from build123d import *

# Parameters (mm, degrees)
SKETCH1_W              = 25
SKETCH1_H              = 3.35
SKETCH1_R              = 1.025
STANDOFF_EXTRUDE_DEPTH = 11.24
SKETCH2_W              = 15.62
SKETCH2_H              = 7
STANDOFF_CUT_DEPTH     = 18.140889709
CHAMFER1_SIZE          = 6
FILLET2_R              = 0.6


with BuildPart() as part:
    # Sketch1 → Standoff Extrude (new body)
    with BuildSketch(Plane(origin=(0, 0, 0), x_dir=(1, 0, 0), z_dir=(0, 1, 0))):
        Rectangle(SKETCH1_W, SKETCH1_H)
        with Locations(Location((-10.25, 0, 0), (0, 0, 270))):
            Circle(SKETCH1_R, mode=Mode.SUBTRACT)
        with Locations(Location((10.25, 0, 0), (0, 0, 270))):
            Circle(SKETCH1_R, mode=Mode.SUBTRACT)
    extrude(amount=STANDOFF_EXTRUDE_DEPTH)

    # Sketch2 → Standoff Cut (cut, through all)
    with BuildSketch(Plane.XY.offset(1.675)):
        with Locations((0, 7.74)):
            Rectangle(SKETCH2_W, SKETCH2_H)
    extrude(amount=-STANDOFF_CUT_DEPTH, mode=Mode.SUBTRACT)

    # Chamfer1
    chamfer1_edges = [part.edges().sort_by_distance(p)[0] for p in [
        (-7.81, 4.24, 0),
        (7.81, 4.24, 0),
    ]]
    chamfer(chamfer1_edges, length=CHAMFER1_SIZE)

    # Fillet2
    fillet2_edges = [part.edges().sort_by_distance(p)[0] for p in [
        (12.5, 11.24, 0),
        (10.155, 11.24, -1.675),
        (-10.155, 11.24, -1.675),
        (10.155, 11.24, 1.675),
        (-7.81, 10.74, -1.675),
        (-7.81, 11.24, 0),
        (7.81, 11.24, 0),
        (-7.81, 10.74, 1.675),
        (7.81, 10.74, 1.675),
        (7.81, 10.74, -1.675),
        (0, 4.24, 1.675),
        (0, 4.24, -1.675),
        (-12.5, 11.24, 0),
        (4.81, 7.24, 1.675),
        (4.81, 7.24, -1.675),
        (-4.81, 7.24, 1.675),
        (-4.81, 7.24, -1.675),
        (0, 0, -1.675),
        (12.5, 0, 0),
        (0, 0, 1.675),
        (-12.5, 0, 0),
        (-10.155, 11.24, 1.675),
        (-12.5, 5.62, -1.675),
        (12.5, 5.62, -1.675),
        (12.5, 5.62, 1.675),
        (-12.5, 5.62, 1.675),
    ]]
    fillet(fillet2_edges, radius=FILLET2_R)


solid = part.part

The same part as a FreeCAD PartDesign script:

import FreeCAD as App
import Part
import Sketcher

V = App.Vector


def edges_at(feature, points):
    """Names of the edges that pass closest to the given points."""
    edges = feature.Shape.Edges
    near = lambda p: min(range(len(edges)), key=lambda i: edges[i].distToShape(Part.Vertex(*p))[0])
    return sorted({f"Edge{near(p) + 1}" for p in points})

doc = App.newDocument("Part")
body = doc.addObject("PartDesign::Body", "Body")

sketch1 = body.newObject("Sketcher::SketchObject", "Sketch")
sketch1.AttachmentSupport = (doc.getObject("XZ_Plane"), [""])
sketch1.MapMode = "FlatFace"
sketch1.addGeometry(Part.LineSegment(V(-12.5, -1.675, 0), V(-12.5, 1.675, 0)), False)
sketch1.addGeometry(Part.LineSegment(V(-12.5, 1.675, 0), V(12.5, 1.675, 0)), False)
sketch1.addGeometry(Part.LineSegment(V(12.5, 1.675, 0), V(12.5, -1.675, 0)), False)
sketch1.addGeometry(Part.LineSegment(V(12.5, -1.675, 0), V(-12.5, -1.675, 0)), False)
sketch1.addGeometry(Part.Circle(V(-10.25, 0, 0), V(0, 0, 1), 1.025), False)
sketch1.addGeometry(Part.Circle(V(10.25, 0, 0), V(0, 0, 1), 1.025), False)
sketch1.addConstraint(Sketcher.Constraint("Coincident", 0, 2, 1, 1))
sketch1.addConstraint(Sketcher.Constraint("Coincident", 1, 2, 2, 1))
sketch1.addConstraint(Sketcher.Constraint("Coincident", 2, 2, 3, 1))
sketch1.addConstraint(Sketcher.Constraint("Coincident", 3, 2, 0, 1))
sketch1.addConstraint(Sketcher.Constraint("Vertical", 0))
sketch1.addConstraint(Sketcher.Constraint("Horizontal", 1))
sketch1.addConstraint(Sketcher.Constraint("Vertical", 2))
sketch1.addConstraint(Sketcher.Constraint("Horizontal", 3))
sketch1.addConstraint(Sketcher.Constraint("Equal", 4, 5))
sketch1.addConstraint(Sketcher.Constraint("Symmetric", 4, 3, 5, 3, -1, 1))
sketch1.addConstraint(Sketcher.Constraint("Symmetric", 0, 2, 2, 2, -1, 1))
sketch1.addConstraint(Sketcher.Constraint("PointOnObject", 4, 3, -1))
sketch1.addConstraint(Sketcher.Constraint("Diameter", 4, 2.05))
sketch1.addConstraint(Sketcher.Constraint("DistanceX", 1, 1, 1, 2, 25.0))
sketch1.addConstraint(Sketcher.Constraint("DistanceY", 0, 1, 0, 2, 3.35))
sketch1.addConstraint(Sketcher.Constraint("DistanceX", 4, 3, 5, 3, 20.5))
pad1 = body.newObject("PartDesign::Pad", "Pad")
pad1.Profile = sketch1
pad1.Length = 11.24
pad1.Reversed = True

sketch2 = body.newObject("Sketcher::SketchObject", "Sketch001")
sketch2.AttachmentSupport = (doc.getObject("XY_Plane"), [""])
sketch2.MapMode = "FlatFace"
sketch2.AttachmentOffset = App.Placement(V(0, 0, 1.675), App.Rotation())
sketch2.addGeometry(Part.LineSegment(V(-7.81, 11.24, 0), V(-7.81, 4.24, 0)), False)
sketch2.addGeometry(Part.LineSegment(V(-7.81, 4.24, 0), V(7.81, 4.24, 0)), False)
sketch2.addGeometry(Part.LineSegment(V(7.81, 4.24, 0), V(7.81, 11.24, 0)), False)
sketch2.addGeometry(Part.LineSegment(V(7.81, 11.24, 0), V(-7.81, 11.24, 0)), False)
sketch2.addConstraint(Sketcher.Constraint("Coincident", 0, 2, 1, 1))
sketch2.addConstraint(Sketcher.Constraint("Coincident", 1, 2, 2, 1))
sketch2.addConstraint(Sketcher.Constraint("Coincident", 2, 2, 3, 1))
sketch2.addConstraint(Sketcher.Constraint("Coincident", 3, 2, 0, 1))
sketch2.addConstraint(Sketcher.Constraint("Vertical", 0))
sketch2.addConstraint(Sketcher.Constraint("Horizontal", 1))
sketch2.addConstraint(Sketcher.Constraint("Vertical", 2))
sketch2.addConstraint(Sketcher.Constraint("Horizontal", 3))
sketch2.addConstraint(Sketcher.Constraint("DistanceY", 0, 2, 0, 1, 7.0))
sketch2.addConstraint(Sketcher.Constraint("DistanceX", 1, 1, 1, 2, 15.62))
sketch2.addConstraint(Sketcher.Constraint("DistanceX", 0, 2, -1, 1, 7.81))
sketch2.addConstraint(Sketcher.Constraint("DistanceY", -1, 1, 0, 2, 4.24))
pocket1 = body.newObject("PartDesign::Pocket", "Pocket")
pocket1.Profile = sketch2
pocket1.Type = "ThroughAll"
doc.recompute()

chamfer = body.newObject("PartDesign::Chamfer", "Chamfer")
chamfer.Base = (pocket1, edges_at(pocket1, [(-7.81, 4.24, 0), (7.81, 4.24, 0)]))
chamfer.Size = 6
doc.recompute()

fillet = body.newObject("PartDesign::Fillet", "Fillet")
fillet.Base = (chamfer, edges_at(chamfer, [
    (12.5, 11.24, 0),
    (10.155, 11.24, -1.675),
    (-10.155, 11.24, -1.675),
    (10.155, 11.24, 1.675),
    (-7.81, 10.74, -1.675),
    (-7.81, 11.24, 0),
    (7.81, 11.24, 0),
    (-7.81, 10.74, 1.675),
    (7.81, 10.74, 1.675),
    (7.81, 10.74, -1.675),
    (0, 4.24, 1.675),
    (0, 4.24, -1.675),
    (-12.5, 11.24, 0),
    (4.81, 7.24, 1.675),
    (4.81, 7.24, -1.675),
    (-4.81, 7.24, 1.675),
    (-4.81, 7.24, -1.675),
    (0, 0, -1.675),
    (12.5, 0, 0),
    (0, 0, 1.675),
    (-12.5, 0, 0),
    (-10.155, 11.24, 1.675),
    (-12.5, 5.62, -1.675),
    (12.5, 5.62, -1.675),
    (12.5, 5.62, 1.675),
    (-12.5, 5.62, 1.675),
]))
fillet.Radius = 0.6

doc.recompute()
